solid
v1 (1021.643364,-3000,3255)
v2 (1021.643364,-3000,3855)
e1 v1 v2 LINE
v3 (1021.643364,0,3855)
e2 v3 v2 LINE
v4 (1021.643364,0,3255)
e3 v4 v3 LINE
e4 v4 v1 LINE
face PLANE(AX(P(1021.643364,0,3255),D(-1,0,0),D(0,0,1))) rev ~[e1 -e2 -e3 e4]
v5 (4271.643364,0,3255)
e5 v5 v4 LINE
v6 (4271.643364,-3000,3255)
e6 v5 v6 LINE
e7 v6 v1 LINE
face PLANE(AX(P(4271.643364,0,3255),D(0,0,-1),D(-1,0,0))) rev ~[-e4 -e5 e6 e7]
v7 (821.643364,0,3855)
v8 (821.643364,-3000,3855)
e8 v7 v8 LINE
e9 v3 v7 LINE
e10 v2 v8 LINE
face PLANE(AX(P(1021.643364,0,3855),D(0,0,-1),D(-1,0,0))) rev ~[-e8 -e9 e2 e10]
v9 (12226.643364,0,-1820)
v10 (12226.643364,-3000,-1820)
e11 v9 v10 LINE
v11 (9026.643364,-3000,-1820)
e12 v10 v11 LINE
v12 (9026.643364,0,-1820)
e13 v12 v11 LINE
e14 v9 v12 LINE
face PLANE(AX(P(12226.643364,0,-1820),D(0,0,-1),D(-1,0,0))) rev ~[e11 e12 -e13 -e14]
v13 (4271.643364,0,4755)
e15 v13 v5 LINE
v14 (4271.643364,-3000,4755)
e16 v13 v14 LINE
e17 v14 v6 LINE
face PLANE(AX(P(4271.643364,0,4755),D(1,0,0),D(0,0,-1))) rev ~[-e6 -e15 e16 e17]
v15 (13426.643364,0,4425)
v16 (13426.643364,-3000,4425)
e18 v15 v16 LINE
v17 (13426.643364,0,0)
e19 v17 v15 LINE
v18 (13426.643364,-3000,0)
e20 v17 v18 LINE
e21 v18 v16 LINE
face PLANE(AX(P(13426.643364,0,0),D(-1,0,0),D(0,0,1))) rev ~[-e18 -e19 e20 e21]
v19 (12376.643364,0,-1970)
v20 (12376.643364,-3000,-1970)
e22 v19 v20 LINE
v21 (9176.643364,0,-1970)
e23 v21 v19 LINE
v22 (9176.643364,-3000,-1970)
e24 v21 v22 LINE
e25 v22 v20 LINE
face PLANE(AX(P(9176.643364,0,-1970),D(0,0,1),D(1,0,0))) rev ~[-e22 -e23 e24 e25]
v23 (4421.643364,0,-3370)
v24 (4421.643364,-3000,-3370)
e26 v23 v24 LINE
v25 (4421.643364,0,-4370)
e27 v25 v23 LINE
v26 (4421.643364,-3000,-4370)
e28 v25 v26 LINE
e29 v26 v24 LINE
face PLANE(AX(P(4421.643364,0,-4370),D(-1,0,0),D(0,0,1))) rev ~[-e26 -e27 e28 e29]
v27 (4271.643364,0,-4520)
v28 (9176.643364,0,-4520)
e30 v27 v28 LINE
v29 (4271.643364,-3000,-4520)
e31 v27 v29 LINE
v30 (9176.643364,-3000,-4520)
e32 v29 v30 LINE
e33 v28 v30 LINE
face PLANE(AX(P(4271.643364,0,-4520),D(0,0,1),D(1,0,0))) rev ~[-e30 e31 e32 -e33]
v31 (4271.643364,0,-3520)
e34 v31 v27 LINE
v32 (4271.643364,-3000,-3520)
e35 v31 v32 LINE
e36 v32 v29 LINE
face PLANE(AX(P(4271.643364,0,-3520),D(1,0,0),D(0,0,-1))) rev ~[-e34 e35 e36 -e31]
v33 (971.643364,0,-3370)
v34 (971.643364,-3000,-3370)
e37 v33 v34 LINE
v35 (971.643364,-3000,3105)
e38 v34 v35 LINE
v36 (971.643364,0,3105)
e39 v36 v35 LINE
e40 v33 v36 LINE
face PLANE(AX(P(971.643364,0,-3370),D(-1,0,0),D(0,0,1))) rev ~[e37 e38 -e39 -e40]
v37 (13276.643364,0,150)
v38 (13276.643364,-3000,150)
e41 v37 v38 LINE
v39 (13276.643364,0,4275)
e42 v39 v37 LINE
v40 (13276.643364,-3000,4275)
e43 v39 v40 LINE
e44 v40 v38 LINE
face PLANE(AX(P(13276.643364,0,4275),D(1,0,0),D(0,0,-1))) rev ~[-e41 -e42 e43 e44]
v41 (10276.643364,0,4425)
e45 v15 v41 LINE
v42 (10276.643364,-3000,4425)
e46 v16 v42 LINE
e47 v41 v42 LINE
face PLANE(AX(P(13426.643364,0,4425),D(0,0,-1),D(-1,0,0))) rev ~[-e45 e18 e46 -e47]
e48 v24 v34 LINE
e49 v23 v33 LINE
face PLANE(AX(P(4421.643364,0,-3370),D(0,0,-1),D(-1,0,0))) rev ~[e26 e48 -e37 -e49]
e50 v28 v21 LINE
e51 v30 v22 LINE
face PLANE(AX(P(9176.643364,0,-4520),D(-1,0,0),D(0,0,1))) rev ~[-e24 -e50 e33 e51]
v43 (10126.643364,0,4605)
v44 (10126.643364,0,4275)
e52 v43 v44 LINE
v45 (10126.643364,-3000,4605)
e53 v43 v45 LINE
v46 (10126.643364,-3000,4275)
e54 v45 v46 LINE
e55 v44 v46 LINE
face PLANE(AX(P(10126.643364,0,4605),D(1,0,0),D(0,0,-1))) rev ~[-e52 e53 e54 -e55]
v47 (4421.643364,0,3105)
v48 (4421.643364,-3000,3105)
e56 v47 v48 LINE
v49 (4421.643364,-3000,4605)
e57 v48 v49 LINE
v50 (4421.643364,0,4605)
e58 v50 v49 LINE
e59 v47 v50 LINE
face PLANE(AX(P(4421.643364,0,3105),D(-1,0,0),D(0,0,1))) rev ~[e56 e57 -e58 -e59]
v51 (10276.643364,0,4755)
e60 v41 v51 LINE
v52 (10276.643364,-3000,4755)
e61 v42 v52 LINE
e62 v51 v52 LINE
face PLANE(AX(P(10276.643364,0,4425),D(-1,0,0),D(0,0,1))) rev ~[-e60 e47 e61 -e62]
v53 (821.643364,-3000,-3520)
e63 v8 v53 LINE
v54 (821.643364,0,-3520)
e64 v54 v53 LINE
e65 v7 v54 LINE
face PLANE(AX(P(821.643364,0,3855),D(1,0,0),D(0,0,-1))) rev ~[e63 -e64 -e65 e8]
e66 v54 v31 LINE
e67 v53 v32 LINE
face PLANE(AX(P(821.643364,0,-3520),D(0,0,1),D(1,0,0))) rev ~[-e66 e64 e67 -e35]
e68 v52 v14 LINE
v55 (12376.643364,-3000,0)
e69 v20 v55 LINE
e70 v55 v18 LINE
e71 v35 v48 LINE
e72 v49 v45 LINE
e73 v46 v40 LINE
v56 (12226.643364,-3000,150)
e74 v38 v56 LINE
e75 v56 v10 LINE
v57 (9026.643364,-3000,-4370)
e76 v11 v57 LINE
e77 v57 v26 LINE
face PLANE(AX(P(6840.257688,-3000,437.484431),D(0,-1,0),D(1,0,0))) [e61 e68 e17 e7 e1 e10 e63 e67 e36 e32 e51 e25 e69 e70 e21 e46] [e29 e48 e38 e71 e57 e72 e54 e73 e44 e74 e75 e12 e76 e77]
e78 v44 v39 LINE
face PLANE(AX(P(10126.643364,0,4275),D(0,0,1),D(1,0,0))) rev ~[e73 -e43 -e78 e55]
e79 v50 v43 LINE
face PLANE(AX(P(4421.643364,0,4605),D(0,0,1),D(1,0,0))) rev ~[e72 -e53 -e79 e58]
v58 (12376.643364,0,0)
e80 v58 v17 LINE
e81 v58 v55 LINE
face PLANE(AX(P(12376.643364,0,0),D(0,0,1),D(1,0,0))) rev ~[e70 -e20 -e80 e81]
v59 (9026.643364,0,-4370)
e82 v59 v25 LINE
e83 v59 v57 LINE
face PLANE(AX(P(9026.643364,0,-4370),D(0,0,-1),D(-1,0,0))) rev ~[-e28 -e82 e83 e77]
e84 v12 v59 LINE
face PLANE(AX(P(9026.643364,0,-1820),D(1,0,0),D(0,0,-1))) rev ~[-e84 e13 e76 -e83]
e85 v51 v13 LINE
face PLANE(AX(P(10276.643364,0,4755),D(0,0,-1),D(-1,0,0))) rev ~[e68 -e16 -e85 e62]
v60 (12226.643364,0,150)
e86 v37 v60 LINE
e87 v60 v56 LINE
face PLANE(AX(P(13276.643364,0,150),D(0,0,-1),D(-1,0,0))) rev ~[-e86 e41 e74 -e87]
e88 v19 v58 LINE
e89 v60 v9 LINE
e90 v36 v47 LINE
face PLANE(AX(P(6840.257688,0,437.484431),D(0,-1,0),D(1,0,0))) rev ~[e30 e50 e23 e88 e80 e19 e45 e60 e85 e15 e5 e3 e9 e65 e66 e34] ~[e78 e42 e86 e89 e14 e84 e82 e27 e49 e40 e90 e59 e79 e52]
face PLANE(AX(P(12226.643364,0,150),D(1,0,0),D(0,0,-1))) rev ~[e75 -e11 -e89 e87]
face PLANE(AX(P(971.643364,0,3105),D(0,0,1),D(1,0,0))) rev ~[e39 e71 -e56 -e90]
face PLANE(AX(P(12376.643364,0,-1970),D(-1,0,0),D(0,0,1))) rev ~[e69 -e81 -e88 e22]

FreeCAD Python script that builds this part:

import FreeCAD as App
import Part
import Sketcher
Q = App.Units.Quantity


def add_polygon(sketch, points):
    """Adds a closed chain of lines whose ends are joined by coincident constraints."""
    first, n = sketch.GeometryCount, len(points)
    for a, b in zip(points, points[1:] + points[:1]):
        sketch.addGeometry(Part.LineSegment(App.Vector(*a, 0), App.Vector(*b, 0)), False)
    for i in range(n):
        sketch.addConstraint(Sketcher.Constraint("Coincident", first + i, 2, first + (i + 1) % n, 1))

doc = App.newDocument("Part")
body = doc.addObject("PartDesign::Body", "Body")

# Sketch on XZ plane
sketch1 = doc.addObject("Sketcher::SketchObject", "Sketch")
body.addObject(sketch1)
sketch1.AttachmentSupport = (doc.XZ_Plane, [""])
sketch1.MapMode = "FlatFace"
add_polygon(sketch1, [(822, -3520), (4272, -3520), (4272, -4520), (9177, -4520), (9177, -1970), (12377, -1970), (12377, 0), (13427, 0), (13427, 4425), (10277, 4425), (10277, 4755), (4272, 4755), (4272, 3255), (1022, 3255), (1022, 3855), (822, 3855)])  # lines 0-15
add_polygon(sketch1, [(4422, 4605), (10127, 4605), (10127, 4275), (13277, 4275), (13277, 150), (12227, 150), (12227, -1820), (9027, -1820), (9027, -4370), (4422, -4370), (4422, -3370), (972, -3370), (972, 3105), (4422, 3105)])  # lines 16-29
sketch1.addConstraint(Sketcher.Constraint("Horizontal", 0))
sketch1.addConstraint(Sketcher.Constraint("Vertical", 1))
sketch1.addConstraint(Sketcher.Constraint("Horizontal", 2))
sketch1.addConstraint(Sketcher.Constraint("Vertical", 3))
sketch1.addConstraint(Sketcher.Constraint("Horizontal", 4))
sketch1.addConstraint(Sketcher.Constraint("Vertical", 5))
sketch1.addConstraint(Sketcher.Constraint("Horizontal", 6))
sketch1.addConstraint(Sketcher.Constraint("Vertical", 7))
sketch1.addConstraint(Sketcher.Constraint("Horizontal", 8))
sketch1.addConstraint(Sketcher.Constraint("Vertical", 9))
sketch1.addConstraint(Sketcher.Constraint("Horizontal", 10))
sketch1.addConstraint(Sketcher.Constraint("Vertical", 11))
sketch1.addConstraint(Sketcher.Constraint("Horizontal", 12))
sketch1.addConstraint(Sketcher.Constraint("Vertical", 13))
sketch1.addConstraint(Sketcher.Constraint("Horizontal", 14))
sketch1.addConstraint(Sketcher.Constraint("Vertical", 15))
sketch1.addConstraint(Sketcher.Constraint("Horizontal", 16))
sketch1.addConstraint(Sketcher.Constraint("Vertical", 17))
sketch1.addConstraint(Sketcher.Constraint("Horizontal", 18))
sketch1.addConstraint(Sketcher.Constraint("Vertical", 19))
sketch1.addConstraint(Sketcher.Constraint("Horizontal", 20))
sketch1.addConstraint(Sketcher.Constraint("Vertical", 21))
sketch1.addConstraint(Sketcher.Constraint("Horizontal", 22))
sketch1.addConstraint(Sketcher.Constraint("Vertical", 23))
sketch1.addConstraint(Sketcher.Constraint("Horizontal", 24))
sketch1.addConstraint(Sketcher.Constraint("Vertical", 25))
sketch1.addConstraint(Sketcher.Constraint("Horizontal", 26))
sketch1.addConstraint(Sketcher.Constraint("Vertical", 27))
sketch1.addConstraint(Sketcher.Constraint("Horizontal", 28))
sketch1.addConstraint(Sketcher.Constraint("Vertical", 29))
sketch1.addConstraint(Sketcher.Constraint("PointOnObject", 5, 2, -1))
sketch1.addConstraint(Sketcher.Constraint("Vertical", 1, 2, 10, 2))
sketch1.addConstraint(Sketcher.Constraint("Vertical", 25, 2, 28, 2))
sketch1.addConstraint(Sketcher.Constraint("Equal", 8, 18))
sketch1.addConstraint(Sketcher.Constraint("Equal", 6, 20))
sketch1.addConstraint(Sketcher.Constraint("Equal", 4, 22))
sketch1.addConstraint(Sketcher.Constraint("Equal", 0, 26))
sketch1.addConstraint(Sketcher.Constraint("Equal", 9, 17))
sketch1.addConstraint(Sketcher.Constraint("Equal", 5, 21))
sketch1.addConstraint(Sketcher.Constraint("Equal", 3, 23))
sketch1.addConstraint(Sketcher.Constraint("Equal", 1, 25))
sketch1.addConstraint(Sketcher.Constraint("Equal", 11, 29))
sketch1.addConstraint(Sketcher.Constraint("DistanceX", 0, 1, 0, 2, Q("3450 mm")))
sketch1.addConstraint(Sketcher.Constraint("DistanceX", 2, 1, 2, 2, Q("4905 mm")))
sketch1.addConstraint(Sketcher.Constraint("DistanceX", 4, 1, 4, 2, Q("3200 mm")))
sketch1.addConstraint(Sketcher.Constraint("DistanceX", 6, 1, 6, 2, Q("1050 mm")))
sketch1.addConstraint(Sketcher.Constraint("DistanceX", 8, 2, 8, 1, Q("3150 mm")))
sketch1.addConstraint(Sketcher.Constraint("DistanceX", 12, 2, 12, 1, Q("3250 mm")))
sketch1.addConstraint(Sketcher.Constraint("DistanceX", 16, 1, 16, 2, Q("5705 mm")))
sketch1.addConstraint(Sketcher.Constraint("DistanceY", 1, 2, 1, 1, Q("1000 mm")))
sketch1.addConstraint(Sketcher.Constraint("DistanceY", 3, 1, 3, 2, Q("2550 mm")))
sketch1.addConstraint(Sketcher.Constraint("DistanceY", 5, 1, 5, 2, Q("1970 mm")))
sketch1.addConstraint(Sketcher.Constraint("DistanceY", 7, 1, 7, 2, Q("4425 mm")))
sketch1.addConstraint(Sketcher.Constraint("DistanceY", 9, 1, 9, 2, Q("330 mm")))
sketch1.addConstraint(Sketcher.Constraint("DistanceY", 11, 2, 11, 1, Q("1500 mm")))
sketch1.addConstraint(Sketcher.Constraint("DistanceY", 13, 1, 13, 2, Q("600 mm")))
sketch1.addConstraint(Sketcher.Constraint("DistanceY", 19, 2, 19, 1, Q("4125 mm")))
sketch1.addConstraint(Sketcher.Constraint("DistanceY", -1, 1, 16, 2, Q("4605 mm")))
sketch1.addConstraint(Sketcher.Constraint("DistanceX", 16, 2, 9, 2, Q("150 mm")))
sketch1.addConstraint(Sketcher.Constraint("DistanceX", -1, 1, 0, 2, Q("4271.643364 mm")))
pad1 = doc.addObject("PartDesign::Pad", "Pad")
body.addObject(pad1)
pad1.Profile = sketch1
pad1.Length = 3000

doc.recompute()
